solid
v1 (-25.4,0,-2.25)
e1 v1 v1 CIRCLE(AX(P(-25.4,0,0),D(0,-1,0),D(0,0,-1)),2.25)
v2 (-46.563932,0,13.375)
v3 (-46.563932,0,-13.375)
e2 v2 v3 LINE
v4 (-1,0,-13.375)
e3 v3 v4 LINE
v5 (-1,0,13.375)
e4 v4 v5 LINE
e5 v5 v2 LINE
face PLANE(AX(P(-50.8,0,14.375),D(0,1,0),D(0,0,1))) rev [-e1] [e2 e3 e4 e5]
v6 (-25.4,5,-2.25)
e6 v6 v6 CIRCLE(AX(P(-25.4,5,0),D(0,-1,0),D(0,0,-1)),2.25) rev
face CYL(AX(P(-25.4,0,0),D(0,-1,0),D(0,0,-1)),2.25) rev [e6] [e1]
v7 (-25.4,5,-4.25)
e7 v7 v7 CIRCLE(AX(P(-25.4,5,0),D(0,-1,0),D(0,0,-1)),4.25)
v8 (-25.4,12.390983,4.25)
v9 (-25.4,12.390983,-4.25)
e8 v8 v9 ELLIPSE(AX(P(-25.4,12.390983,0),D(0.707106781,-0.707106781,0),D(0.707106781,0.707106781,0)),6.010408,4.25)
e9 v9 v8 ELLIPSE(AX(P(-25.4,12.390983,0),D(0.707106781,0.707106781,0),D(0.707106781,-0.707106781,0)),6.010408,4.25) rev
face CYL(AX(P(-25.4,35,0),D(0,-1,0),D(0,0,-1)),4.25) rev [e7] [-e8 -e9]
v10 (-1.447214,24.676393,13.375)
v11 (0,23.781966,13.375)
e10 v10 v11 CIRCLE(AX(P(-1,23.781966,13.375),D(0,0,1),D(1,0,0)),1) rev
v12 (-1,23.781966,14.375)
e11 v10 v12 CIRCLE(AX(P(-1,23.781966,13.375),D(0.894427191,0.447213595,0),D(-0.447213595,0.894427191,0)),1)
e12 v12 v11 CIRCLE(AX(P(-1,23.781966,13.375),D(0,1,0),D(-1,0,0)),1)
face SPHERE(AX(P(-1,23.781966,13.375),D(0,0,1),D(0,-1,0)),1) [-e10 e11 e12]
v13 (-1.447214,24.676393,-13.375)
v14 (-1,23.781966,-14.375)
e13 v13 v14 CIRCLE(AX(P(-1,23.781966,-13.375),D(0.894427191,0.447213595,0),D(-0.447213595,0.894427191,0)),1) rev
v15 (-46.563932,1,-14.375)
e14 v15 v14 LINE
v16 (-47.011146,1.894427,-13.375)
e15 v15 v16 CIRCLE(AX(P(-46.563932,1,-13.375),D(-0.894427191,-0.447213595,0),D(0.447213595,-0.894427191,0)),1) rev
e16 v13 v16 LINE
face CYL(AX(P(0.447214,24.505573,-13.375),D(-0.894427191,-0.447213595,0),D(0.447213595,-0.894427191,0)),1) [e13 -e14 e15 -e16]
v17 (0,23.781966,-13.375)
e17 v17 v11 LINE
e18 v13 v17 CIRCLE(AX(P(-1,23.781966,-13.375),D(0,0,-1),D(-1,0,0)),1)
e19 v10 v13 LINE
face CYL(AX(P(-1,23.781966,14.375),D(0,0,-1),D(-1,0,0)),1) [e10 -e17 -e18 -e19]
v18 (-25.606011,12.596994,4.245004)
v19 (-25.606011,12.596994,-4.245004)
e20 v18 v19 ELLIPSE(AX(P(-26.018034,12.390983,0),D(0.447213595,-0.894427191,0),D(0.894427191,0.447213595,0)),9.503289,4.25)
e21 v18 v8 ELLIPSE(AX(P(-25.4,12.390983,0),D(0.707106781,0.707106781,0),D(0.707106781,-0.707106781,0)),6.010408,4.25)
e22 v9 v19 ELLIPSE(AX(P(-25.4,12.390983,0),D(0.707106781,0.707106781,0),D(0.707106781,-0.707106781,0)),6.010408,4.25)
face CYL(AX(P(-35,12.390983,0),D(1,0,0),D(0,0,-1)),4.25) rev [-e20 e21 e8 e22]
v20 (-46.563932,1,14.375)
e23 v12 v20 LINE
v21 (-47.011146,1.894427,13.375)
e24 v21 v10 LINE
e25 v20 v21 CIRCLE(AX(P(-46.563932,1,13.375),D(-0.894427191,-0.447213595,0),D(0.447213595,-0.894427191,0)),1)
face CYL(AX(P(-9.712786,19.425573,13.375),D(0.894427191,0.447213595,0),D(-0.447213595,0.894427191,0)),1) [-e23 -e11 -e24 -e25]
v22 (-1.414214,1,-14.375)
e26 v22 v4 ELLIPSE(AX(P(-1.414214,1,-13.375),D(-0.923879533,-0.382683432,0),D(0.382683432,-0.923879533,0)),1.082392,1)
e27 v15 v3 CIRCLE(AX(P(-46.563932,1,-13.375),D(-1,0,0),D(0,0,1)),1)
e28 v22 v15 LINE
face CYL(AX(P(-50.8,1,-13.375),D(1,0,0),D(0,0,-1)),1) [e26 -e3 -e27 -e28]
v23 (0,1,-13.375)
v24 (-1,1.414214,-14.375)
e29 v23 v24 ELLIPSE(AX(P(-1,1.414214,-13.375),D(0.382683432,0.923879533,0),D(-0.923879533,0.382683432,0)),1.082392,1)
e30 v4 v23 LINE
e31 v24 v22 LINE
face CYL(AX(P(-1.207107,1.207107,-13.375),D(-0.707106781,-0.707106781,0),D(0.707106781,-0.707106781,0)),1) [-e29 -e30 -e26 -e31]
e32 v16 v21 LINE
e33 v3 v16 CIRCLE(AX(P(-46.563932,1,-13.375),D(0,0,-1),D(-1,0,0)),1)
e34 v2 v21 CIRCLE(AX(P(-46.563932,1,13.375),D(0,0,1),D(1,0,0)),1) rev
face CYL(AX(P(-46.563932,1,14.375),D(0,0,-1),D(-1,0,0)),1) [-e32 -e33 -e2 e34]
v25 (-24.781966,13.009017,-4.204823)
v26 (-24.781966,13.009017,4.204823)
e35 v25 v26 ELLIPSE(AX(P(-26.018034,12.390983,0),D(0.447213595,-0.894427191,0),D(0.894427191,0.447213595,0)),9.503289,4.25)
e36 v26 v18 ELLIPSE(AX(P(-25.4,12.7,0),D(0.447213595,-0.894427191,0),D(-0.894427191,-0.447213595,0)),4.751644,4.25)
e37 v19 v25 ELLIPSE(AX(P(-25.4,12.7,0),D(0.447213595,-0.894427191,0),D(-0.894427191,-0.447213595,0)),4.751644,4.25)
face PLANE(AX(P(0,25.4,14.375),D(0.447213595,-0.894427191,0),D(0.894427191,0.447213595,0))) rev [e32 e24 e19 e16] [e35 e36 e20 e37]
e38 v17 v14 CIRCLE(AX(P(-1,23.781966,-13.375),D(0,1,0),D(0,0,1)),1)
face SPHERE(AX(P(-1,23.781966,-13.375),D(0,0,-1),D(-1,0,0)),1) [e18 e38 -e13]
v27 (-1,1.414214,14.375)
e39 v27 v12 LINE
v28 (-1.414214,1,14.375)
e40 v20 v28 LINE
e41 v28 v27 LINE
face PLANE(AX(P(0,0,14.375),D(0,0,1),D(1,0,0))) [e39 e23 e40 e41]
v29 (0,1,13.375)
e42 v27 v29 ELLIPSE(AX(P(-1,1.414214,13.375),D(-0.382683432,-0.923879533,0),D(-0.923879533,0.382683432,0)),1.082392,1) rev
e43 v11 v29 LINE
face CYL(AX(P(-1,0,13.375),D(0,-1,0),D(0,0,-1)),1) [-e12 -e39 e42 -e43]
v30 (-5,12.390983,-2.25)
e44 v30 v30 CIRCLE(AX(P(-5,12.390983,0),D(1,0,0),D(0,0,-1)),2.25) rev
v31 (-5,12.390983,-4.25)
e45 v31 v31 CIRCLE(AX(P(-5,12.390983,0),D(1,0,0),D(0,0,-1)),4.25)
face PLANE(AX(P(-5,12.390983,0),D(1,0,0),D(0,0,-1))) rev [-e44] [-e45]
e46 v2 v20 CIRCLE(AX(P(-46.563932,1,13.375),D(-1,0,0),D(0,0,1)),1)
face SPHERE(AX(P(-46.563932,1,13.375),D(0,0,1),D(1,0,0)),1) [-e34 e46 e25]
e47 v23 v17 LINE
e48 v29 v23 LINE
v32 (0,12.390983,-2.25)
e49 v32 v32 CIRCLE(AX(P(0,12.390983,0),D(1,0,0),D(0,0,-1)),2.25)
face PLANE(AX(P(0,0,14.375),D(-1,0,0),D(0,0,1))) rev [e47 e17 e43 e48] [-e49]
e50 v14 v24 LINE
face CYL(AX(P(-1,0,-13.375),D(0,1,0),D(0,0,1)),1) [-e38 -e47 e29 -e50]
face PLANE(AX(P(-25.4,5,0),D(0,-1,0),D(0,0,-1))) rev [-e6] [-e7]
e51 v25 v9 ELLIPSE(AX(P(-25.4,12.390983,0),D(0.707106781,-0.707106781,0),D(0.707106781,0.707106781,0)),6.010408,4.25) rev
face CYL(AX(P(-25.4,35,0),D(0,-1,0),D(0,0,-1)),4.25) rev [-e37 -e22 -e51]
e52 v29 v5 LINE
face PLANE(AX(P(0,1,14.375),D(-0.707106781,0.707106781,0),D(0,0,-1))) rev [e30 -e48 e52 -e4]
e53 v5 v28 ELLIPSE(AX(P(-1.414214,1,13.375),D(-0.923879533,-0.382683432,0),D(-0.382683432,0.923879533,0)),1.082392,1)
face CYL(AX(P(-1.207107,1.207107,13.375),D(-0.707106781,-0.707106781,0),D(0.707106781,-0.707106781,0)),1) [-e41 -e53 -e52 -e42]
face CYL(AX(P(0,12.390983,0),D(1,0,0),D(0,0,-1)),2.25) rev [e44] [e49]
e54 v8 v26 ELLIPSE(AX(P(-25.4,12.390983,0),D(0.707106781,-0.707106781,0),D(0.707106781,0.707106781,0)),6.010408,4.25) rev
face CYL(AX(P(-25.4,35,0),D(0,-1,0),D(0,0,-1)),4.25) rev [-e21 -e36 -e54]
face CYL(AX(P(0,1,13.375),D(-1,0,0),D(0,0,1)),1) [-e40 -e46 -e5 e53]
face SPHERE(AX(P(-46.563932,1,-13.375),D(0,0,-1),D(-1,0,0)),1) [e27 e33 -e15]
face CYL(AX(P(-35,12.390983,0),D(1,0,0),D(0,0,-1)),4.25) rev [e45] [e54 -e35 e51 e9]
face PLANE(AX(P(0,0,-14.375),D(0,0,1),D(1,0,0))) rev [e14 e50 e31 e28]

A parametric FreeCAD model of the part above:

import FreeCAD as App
import Part
import Sketcher
from FreeCAD import Vector


def edges_at(feature, points):
    """Names of the edges that pass closest to the given points."""
    edges = feature.Shape.Edges
    near = lambda p: min(range(len(edges)), key=lambda i: edges[i].distToShape(Part.Vertex(*p))[0])
    return sorted({f"Edge{near(p) + 1}" for p in points})


def add_polygon(sketch, points):
    """Adds a closed chain of lines whose ends are joined by coincident constraints."""
    first, n = sketch.GeometryCount, len(points)
    for a, b in zip(points, points[1:] + points[:1]):
        sketch.addGeometry(Part.LineSegment(App.Vector(*a, 0), App.Vector(*b, 0)), False)
    for i in range(n):
        sketch.addConstraint(Sketcher.Constraint("Coincident", first + i, 2, first + (i + 1) % n, 1))

doc = App.newDocument("Part")
body = doc.addObject("PartDesign::Body", "Body")

# Sketch on XY plane
sketch1 = body.newObject("Sketcher::SketchObject", "Sketch")
sketch1.AttachmentSupport = (doc.getObject("XY_Plane"), [""])
sketch1.MapMode = "FlatFace"
add_polygon(sketch1, [(0, 0), (0, 25.4), (-50.8, 0)])  # lines 0-2
sketch1.addConstraint([
    Sketcher.Constraint("Vertical", 0),
    Sketcher.Constraint("Horizontal", 2),
    Sketcher.Constraint("Coincident", 2, 2, -1, 1),
    Sketcher.Constraint("DistanceX", 2, 1, 2, 2, 50.8),
    Sketcher.Constraint("DistanceY", 0, 1, 0, 2, 25.4),
])
pad1 = body.newObject("PartDesign::Pad", "Pad")
pad1.Profile = sketch1
pad1.Length = 28.75
pad1.Midplane = True

# Sketch on YZ plane
sketch2 = body.newObject("Sketcher::SketchObject", "Sketch001")
sketch2.AttachmentSupport = (doc.getObject("YZ_Plane"), [""])
sketch2.MapMode = "FlatFace"
sketch2.addGeometry(Part.Circle(Vector(12.390983, 0, 0), Vector(0, 0, 1), 2.25), False)
sketch2.addConstraint([
    Sketcher.Constraint("PointOnObject", 0, 3, -1),
    Sketcher.Constraint("Diameter", 0, 4.5),
    Sketcher.Constraint("DistanceX", -1, 1, 0, 3, 12.390983),
])
doc.recompute()
hole = body.newObject("PartDesign::Hole", "Hole")
hole.Profile = sketch2
hole.ThreadType = "None"
hole.Diameter = 4.5
hole.DepthType = "ThroughAll"

# Sketch on YZ plane
sketch3 = body.newObject("Sketcher::SketchObject", "Sketch002")
sketch3.AttachmentSupport = (doc.getObject("YZ_Plane"), [""])
sketch3.MapMode = "FlatFace"
sketch3.AttachmentOffset = App.Placement(Vector(0, 0, -5), App.Rotation())
sketch3.addGeometry(Part.Circle(Vector(12.390983, 0, 0), Vector(0, 0, 1), 4.25), False)
sketch3.addConstraint([
    Sketcher.Constraint("PointOnObject", 0, 3, -1),
    Sketcher.Constraint("Diameter", 0, 8.5),
    Sketcher.Constraint("DistanceX", -1, 1, 0, 3, 12.390983),
])
pocket1 = body.newObject("PartDesign::Pocket", "Pocket")
pocket1.Profile = sketch3
pocket1.Length = 30

# Sketch on XZ plane
sketch4 = body.newObject("Sketcher::SketchObject", "Sketch003")
sketch4.AttachmentSupport = (doc.getObject("XZ_Plane"), [""])
sketch4.MapMode = "FlatFace"
sketch4.addGeometry(Part.Circle(Vector(-25.4, 0, 0), Vector(0, 0, 1), 2.25), False)
sketch4.addConstraint([
    Sketcher.Constraint("PointOnObject", 0, 3, -1),
    Sketcher.Constraint("Diameter", 0, 4.5),
    Sketcher.Constraint("DistanceX", 0, 3, -1, 1, 25.4),
])
doc.recompute()
hole2 = body.newObject("PartDesign::Hole", "Hole001")
hole2.Profile = sketch4
hole2.ThreadType = "None"
hole2.Diameter = 4.5
hole2.DepthType = "ThroughAll"

# Sketch on XZ plane
sketch5 = body.newObject("Sketcher::SketchObject", "Sketch004")
sketch5.AttachmentSupport = (doc.getObject("XZ_Plane"), [""])
sketch5.MapMode = "FlatFace"
sketch5.AttachmentOffset = App.Placement(Vector(0, 0, -5), App.Rotation())
sketch5.addGeometry(Part.Circle(Vector(-25.4, 0, 0), Vector(0, 0, 1), 4.25), False)
sketch5.addConstraint([
    Sketcher.Constraint("PointOnObject", 0, 3, -1),
    Sketcher.Constraint("Diameter", 0, 8.5),
    Sketcher.Constraint("DistanceX", 0, 3, -1, 1, 25.4),
])
pocket2 = body.newObject("PartDesign::Pocket", "Pocket001")
pocket2.Profile = sketch5
pocket2.Length = 30
doc.recompute()

chamfer = body.newObject("PartDesign::Chamfer", "Chamfer")
chamfer.Base = (pocket2, edges_at(pocket2, [(0, 0, 0)]))
chamfer.Size = 1
doc.recompute()

fillet = body.newObject("PartDesign::Fillet", "Fillet")
fillet.Base = (chamfer, edges_at(chamfer, [
    (-25.4, 12.7, 14.375),
    (-25.4, 12.7, -14.375),
    (-25.9, 0, -14.375),
    (-25.9, 0, 14.375),
    (0, 13.2, -14.375),
    (0, 13.2, 14.375),
    (-0.5, 0.5, -14.375),
    (-0.5, 0.5, 14.375),
    (-50.8, 0, 0),
    (0, 25.4, 0),
]))
fillet.Radius = 1

doc.recompute()
